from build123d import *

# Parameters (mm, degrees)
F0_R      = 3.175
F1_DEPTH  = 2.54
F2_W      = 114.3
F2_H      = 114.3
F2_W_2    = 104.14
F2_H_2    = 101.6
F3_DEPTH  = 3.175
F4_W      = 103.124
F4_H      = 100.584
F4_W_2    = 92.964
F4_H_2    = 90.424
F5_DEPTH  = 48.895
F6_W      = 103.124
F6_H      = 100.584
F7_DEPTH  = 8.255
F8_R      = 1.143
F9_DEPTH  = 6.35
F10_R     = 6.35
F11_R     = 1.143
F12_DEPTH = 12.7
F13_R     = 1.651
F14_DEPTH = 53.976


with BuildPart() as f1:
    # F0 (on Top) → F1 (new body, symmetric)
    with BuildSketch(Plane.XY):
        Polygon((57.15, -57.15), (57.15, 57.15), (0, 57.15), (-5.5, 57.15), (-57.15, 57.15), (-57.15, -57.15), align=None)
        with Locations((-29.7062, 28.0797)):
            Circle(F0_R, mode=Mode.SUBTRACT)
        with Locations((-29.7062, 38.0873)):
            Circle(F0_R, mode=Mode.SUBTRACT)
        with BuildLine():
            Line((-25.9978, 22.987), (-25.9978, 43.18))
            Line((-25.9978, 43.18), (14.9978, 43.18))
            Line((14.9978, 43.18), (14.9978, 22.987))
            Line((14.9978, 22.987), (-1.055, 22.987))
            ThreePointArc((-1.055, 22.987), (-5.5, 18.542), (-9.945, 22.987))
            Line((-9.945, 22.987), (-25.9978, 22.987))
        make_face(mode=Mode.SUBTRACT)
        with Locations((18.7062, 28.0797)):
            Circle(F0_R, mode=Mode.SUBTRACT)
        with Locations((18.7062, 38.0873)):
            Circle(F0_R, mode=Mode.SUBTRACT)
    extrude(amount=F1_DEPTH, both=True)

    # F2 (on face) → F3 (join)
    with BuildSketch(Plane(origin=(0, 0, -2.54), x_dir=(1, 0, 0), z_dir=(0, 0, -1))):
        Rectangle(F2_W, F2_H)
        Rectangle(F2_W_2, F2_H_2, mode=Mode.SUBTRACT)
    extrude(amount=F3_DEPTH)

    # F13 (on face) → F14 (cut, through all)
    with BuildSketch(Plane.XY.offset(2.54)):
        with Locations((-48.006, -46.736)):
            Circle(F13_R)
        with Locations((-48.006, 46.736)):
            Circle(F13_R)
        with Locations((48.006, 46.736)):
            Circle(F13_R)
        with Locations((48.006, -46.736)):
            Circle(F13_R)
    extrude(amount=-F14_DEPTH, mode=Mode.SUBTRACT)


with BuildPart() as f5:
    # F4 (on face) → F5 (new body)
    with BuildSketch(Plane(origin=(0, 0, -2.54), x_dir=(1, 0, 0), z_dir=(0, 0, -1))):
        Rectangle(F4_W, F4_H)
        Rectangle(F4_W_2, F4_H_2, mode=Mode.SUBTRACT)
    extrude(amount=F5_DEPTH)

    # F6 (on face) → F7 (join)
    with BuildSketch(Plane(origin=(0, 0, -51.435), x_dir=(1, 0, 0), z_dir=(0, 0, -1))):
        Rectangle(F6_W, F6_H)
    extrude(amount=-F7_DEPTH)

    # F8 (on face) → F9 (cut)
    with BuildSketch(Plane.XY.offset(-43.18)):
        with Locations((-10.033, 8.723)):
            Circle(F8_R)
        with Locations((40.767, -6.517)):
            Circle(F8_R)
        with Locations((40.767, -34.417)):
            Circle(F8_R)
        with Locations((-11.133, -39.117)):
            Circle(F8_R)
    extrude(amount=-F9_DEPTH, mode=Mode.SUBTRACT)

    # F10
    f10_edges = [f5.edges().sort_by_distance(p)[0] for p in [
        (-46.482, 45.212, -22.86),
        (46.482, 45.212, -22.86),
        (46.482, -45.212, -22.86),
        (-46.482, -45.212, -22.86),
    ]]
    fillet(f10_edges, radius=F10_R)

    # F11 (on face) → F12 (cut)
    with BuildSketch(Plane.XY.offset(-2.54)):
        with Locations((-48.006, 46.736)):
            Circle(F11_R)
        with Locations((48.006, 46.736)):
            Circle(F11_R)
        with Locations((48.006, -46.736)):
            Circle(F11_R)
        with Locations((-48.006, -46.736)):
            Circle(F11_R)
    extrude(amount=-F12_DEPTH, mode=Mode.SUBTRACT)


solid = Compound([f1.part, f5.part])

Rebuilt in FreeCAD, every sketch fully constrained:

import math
import FreeCAD as App
import Part
import Sketcher
from FreeCAD import Vector
Q = App.Units.Quantity


def edges_at(feature, points):
    """Names of the edges that pass closest to the given points."""
    edges = feature.Shape.Edges
    near = lambda p: min(range(len(edges)), key=lambda i: edges[i].distToShape(Part.Vertex(*p))[0])
    return sorted({f"Edge{near(p) + 1}" for p in points})

doc = App.newDocument("Part")
body = doc.addObject("PartDesign::Body", "Body")

# Sketch on XY plane
sketch1 = body.newObject("Sketcher::SketchObject", "Sketch")
sketch1.AttachmentSupport = (doc.getObject("XY_Plane"), [""])
sketch1.MapMode = "FlatFace"
sketch1.addGeometry([
    Part.LineSegment(Vector(57.1, -57.1, 0), Vector(57.1, 57.1, 0)),  # 0
    Part.LineSegment(Vector(57.1, 57.1, 0), Vector(-57.1, 57.1, 0)),  # 1
    Part.LineSegment(Vector(-57.1, 57.1, 0), Vector(-57.1, -57.1, 0)),  # 2
    Part.LineSegment(Vector(-57.1, -57.1, 0), Vector(57.1, -57.1, 0)),  # 3
    Part.Circle(Vector(-29.7, 28.1, 0), Vector(0, 0, 1), 3.2),  # 4
    Part.LineSegment(Vector(-9.9, 23, 0), Vector(-26, 23, 0)),  # 5
    Part.LineSegment(Vector(-26, 23, 0), Vector(-26, 43.2, 0)),  # 6
    Part.LineSegment(Vector(-26, 43.2, 0), Vector(15, 43.2, 0)),  # 7
    Part.LineSegment(Vector(15, 43.2, 0), Vector(15, 23, 0)),  # 8
    Part.LineSegment(Vector(15, 23, 0), Vector(-1.1, 23, 0)),  # 9
    Part.ArcOfCircle(Part.Circle(Vector(-5.5, 23, 0), Vector(0, 0, 1), 4.4), math.radians(180), math.radians(360)),  # 10
    Part.Circle(Vector(18.7, 28.1, 0), Vector(0, 0, 1), 3.2),  # 11
    Part.Circle(Vector(-29.7, 38.1, 0), Vector(0, 0, 1), 3.2),  # 12
    Part.Circle(Vector(18.7, 38.1, 0), Vector(0, 0, 1), 3.2),  # 13
], False)
sketch1.addConstraint([
    Sketcher.Constraint("Coincident", 0, 2, 1, 1),
    Sketcher.Constraint("Coincident", 1, 2, 2, 1),
    Sketcher.Constraint("Coincident", 2, 2, 3, 1),
    Sketcher.Constraint("Coincident", 3, 2, 0, 1),
    Sketcher.Constraint("Coincident", 5, 2, 6, 1),
    Sketcher.Constraint("Coincident", 6, 2, 7, 1),
    Sketcher.Constraint("Coincident", 7, 2, 8, 1),
    Sketcher.Constraint("Coincident", 8, 2, 9, 1),
    Sketcher.Constraint("Coincident", 9, 2, 10, 2),
    Sketcher.Constraint("Coincident", 10, 1, 5, 1),
    Sketcher.Constraint("Vertical", 0),
    Sketcher.Constraint("Horizontal", 1),
    Sketcher.Constraint("Vertical", 2),
    Sketcher.Constraint("Horizontal", 3),
    Sketcher.Constraint("Horizontal", 5),
    Sketcher.Constraint("Vertical", 6),
    Sketcher.Constraint("Horizontal", 7),
    Sketcher.Constraint("Vertical", 8),
    Sketcher.Constraint("Horizontal", 9),
    Sketcher.Constraint("Equal", 4, 11),
    Sketcher.Constraint("Equal", 11, 12),
    Sketcher.Constraint("Equal", 12, 13),
    Sketcher.Constraint("Symmetric", 0, 2, 2, 2, -1, 1),
    Sketcher.Constraint("Horizontal", 4, 3, 11, 3),
    Sketcher.Constraint("Horizontal", 12, 3, 13, 3),
    Sketcher.Constraint("Horizontal", 10, 3, 5, 2),
    Sketcher.Constraint("Horizontal", 5, 2, 8, 2),
    Sketcher.Constraint("Vertical", 4, 3, 12, 3),
    Sketcher.Constraint("Vertical", 11, 3, 13, 3),
    Sketcher.Constraint("Equal", 5, 9),
    Sketcher.Constraint("Equal", 3, 0),
    Sketcher.Constraint("Diameter", 4, Q("0.25 in")),
    Sketcher.Constraint("DistanceX", 1, 2, 1, 1, Q("4.5 in")),
    Sketcher.Constraint("Radius", 10, Q("0.175 in")),
    Sketcher.Constraint("DistanceY", -1, 1, 6, 2, Q("1.7 in")),
    Sketcher.Constraint("DistanceX", 5, 2, 5, 1, Q("0.632 in")),
    Sketcher.Constraint("DistanceY", 6, 1, 6, 2, Q("0.795 in")),
    Sketcher.Constraint("DistanceX", 5, 2, 11, 3, Q("1.76 in")),
    Sketcher.Constraint("DistanceX", 4, 3, 10, 3, Q("0.953 in")),
    Sketcher.Constraint("DistanceY", 4, 3, 12, 3, Q("0.394 in")),
    Sketcher.Constraint("DistanceY", -1, 1, 4, 3, Q("1.1055 in")),
    Sketcher.Constraint("DistanceX", 4, 3, -1, 1, 29.7062),
])
pad1 = body.newObject("PartDesign::Pad", "Pad")
pad1.Profile = sketch1
pad1.Length = Q("0.2 in")
pad1.Midplane = True

# Sketch on XY plane
sketch2 = body.newObject("Sketcher::SketchObject", "Sketch001")
sketch2.AttachmentSupport = (doc.getObject("XY_Plane"), [""])
sketch2.MapMode = "FlatFace"
sketch2.AttachmentOffset = App.Placement(Vector(0, 0, -0.1 * 25.4), App.Rotation())
sketch2.addGeometry([
    Part.LineSegment(Vector(-57, -57, 0), Vector(-57, 57, 0)),  # 0
    Part.LineSegment(Vector(-57, 57, 0), Vector(57, 57, 0)),  # 1
    Part.LineSegment(Vector(57, 57, 0), Vector(57, -57, 0)),  # 2
    Part.LineSegment(Vector(57, -57, 0), Vector(-57, -57, 0)),  # 3
    Part.LineSegment(Vector(52, 51, 0), Vector(-52, 51, 0)),  # 4
    Part.LineSegment(Vector(-52, 51, 0), Vector(-52, -51, 0)),  # 5
    Part.LineSegment(Vector(-52, -51, 0), Vector(52, -51, 0)),  # 6
    Part.LineSegment(Vector(52, -51, 0), Vector(52, 51, 0)),  # 7
], False)
sketch2.addConstraint([
    Sketcher.Constraint("Coincident", 0, 2, 1, 1),
    Sketcher.Constraint("Coincident", 1, 2, 2, 1),
    Sketcher.Constraint("Coincident", 2, 2, 3, 1),
    Sketcher.Constraint("Coincident", 3, 2, 0, 1),
    Sketcher.Constraint("Coincident", 4, 2, 5, 1),
    Sketcher.Constraint("Coincident", 5, 2, 6, 1),
    Sketcher.Constraint("Coincident", 6, 2, 7, 1),
    Sketcher.Constraint("Coincident", 7, 2, 4, 1),
    Sketcher.Constraint("Vertical", 0),
    Sketcher.Constraint("Horizontal", 1),
    Sketcher.Constraint("Vertical", 2),
    Sketcher.Constraint("Horizontal", 3),
    Sketcher.Constraint("Horizontal", 4),
    Sketcher.Constraint("Vertical", 5),
    Sketcher.Constraint("Horizontal", 6),
    Sketcher.Constraint("Vertical", 7),
    Sketcher.Constraint("Symmetric", 0, 2, 2, 2, -1, 1),
    Sketcher.Constraint("Symmetric", 4, 2, 6, 2, -1, 1),
    Sketcher.Constraint("Equal", 3, 0),
    Sketcher.Constraint("DistanceY", 5, 2, 5, 1, Q("4 in")),
    Sketcher.Constraint("DistanceX", 1, 1, 1, 2, Q("4.5 in")),
    Sketcher.Constraint("DistanceX", 4, 2, 4, 1, Q("4.1 in")),
])
pad2 = body.newObject("PartDesign::Pad", "Pad001")
pad2.Profile = sketch2
pad2.Length = Q("0.125 in")
pad2.Reversed = True

# Sketch on XY plane
sketch3 = body.newObject("Sketcher::SketchObject", "Sketch002")
sketch3.AttachmentSupport = (doc.getObject("XY_Plane"), [""])
sketch3.MapMode = "FlatFace"
sketch3.AttachmentOffset = App.Placement(Vector(0, 0, 0.1 * 25.4), App.Rotation())
sketch3.addGeometry([
    Part.Circle(Vector(-48, -46.7, 0), Vector(0, 0, 1), 1.7),
    Part.Circle(Vector(-48, 46.7, 0), Vector(0, 0, 1), 1.7),
    Part.Circle(Vector(48, 46.7, 0), Vector(0, 0, 1), 1.7),
    Part.Circle(Vector(48, -46.7, 0), Vector(0, 0, 1), 1.7),
], False)
sketch3.addConstraint([
    Sketcher.Constraint("Equal", 0, 1),
    Sketcher.Constraint("Equal", 1, 2),
    Sketcher.Constraint("Equal", 2, 3),
    Sketcher.Constraint("Symmetric", 0, 3, 2, 3, -1, 1),
    Sketcher.Constraint("Symmetric", 1, 3, 3, 3, -1, 1),
    Sketcher.Constraint("Symmetric", 1, 3, 2, 3, -2),
    Sketcher.Constraint("Diameter", 0, Q("0.13 in")),
    Sketcher.Constraint("DistanceX", 0, 3, -1, 1, Q("1.89 in")),
    Sketcher.Constraint("DistanceY", 0, 3, -1, 1, Q("1.84 in")),
])
pocket1 = body.newObject("PartDesign::Pocket", "Pocket")
pocket1.Profile = sketch3
pocket1.Type = "ThroughAll"
body2 = doc.addObject("PartDesign::Body", "Body001")

# Sketch on XY plane
sketch4 = body2.newObject("Sketcher::SketchObject", "Sketch003")
sketch4.AttachmentSupport = (doc.getObject("XY_Plane001"), [""])
sketch4.MapMode = "FlatFace"
sketch4.AttachmentOffset = App.Placement(Vector(0, 0, -0.1 * 25.4), App.Rotation())
sketch4.addGeometry([
    Part.LineSegment(Vector(-52, -50, 0), Vector(-52, 50, 0)),  # 0
    Part.LineSegment(Vector(-52, 50, 0), Vector(52, 50, 0)),  # 1
    Part.LineSegment(Vector(52, 50, 0), Vector(52, -50, 0)),  # 2
    Part.LineSegment(Vector(52, -50, 0), Vector(-52, -50, 0)),  # 3
    Part.LineSegment(Vector(46, 45, 0), Vector(-46, 45, 0)),  # 4
    Part.LineSegment(Vector(-46, 45, 0), Vector(-46, -45, 0)),  # 5
    Part.LineSegment(Vector(-46, -45, 0), Vector(46, -45, 0)),  # 6
    Part.LineSegment(Vector(46, -45, 0), Vector(46, 45, 0)),  # 7
], False)
sketch4.addConstraint([
    Sketcher.Constraint("Coincident", 0, 2, 1, 1),
    Sketcher.Constraint("Coincident", 1, 2, 2, 1),
    Sketcher.Constraint("Coincident", 2, 2, 3, 1),
    Sketcher.Constraint("Coincident", 3, 2, 0, 1),
    Sketcher.Constraint("Coincident", 4, 2, 5, 1),
    Sketcher.Constraint("Coincident", 5, 2, 6, 1),
    Sketcher.Constraint("Coincident", 6, 2, 7, 1),
    Sketcher.Constraint("Coincident", 7, 2, 4, 1),
    Sketcher.Constraint("Vertical", 0),
    Sketcher.Constraint("Horizontal", 1),
    Sketcher.Constraint("Vertical", 2),
    Sketcher.Constraint("Horizontal", 3),
    Sketcher.Constraint("Horizontal", 4),
    Sketcher.Constraint("Vertical", 5),
    Sketcher.Constraint("Horizontal", 6),
    Sketcher.Constraint("Vertical", 7),
    Sketcher.Constraint("Symmetric", 0, 2, 2, 2, -1, 1),
    Sketcher.Constraint("Symmetric", 4, 2, 6, 2, -1, 1),
    Sketcher.Constraint("DistanceX", 1, 1, 1, 2, Q("4.06 in")),
    Sketcher.Constraint("DistanceX", 4, 2, 4, 1, Q("3.66 in")),
    Sketcher.Constraint("DistanceY", 0, 1, 0, 2, Q("3.96 in")),
    Sketcher.Constraint("DistanceY", 5, 2, 5, 1, Q("3.56 in")),
])
pad3 = body2.newObject("PartDesign::Pad", "Pad002")
pad3.Profile = sketch4
pad3.Length = Q("1.925 in")
pad3.Reversed = True

# Sketch on XY plane
sketch5 = body2.newObject("Sketcher::SketchObject", "Sketch004")
sketch5.AttachmentSupport = (doc.getObject("XY_Plane001"), [""])
sketch5.MapMode = "FlatFace"
sketch5.AttachmentOffset = App.Placement(Vector(0, 0, -2.025 * 25.4), App.Rotation())
sketch5.addGeometry([
    Part.LineSegment(Vector(-52, -50, 0), Vector(-52, 50, 0)),
    Part.LineSegment(Vector(-52, 50, 0), Vector(52, 50, 0)),
    Part.LineSegment(Vector(52, 50, 0), Vector(52, -50, 0)),
    Part.LineSegment(Vector(52, -50, 0), Vector(-52, -50, 0)),
], False)
sketch5.addConstraint([
    Sketcher.Constraint("Coincident", 0, 2, 1, 1),
    Sketcher.Constraint("Coincident", 1, 2, 2, 1),
    Sketcher.Constraint("Coincident", 2, 2, 3, 1),
    Sketcher.Constraint("Coincident", 3, 2, 0, 1),
    Sketcher.Constraint("Vertical", 0),
    Sketcher.Constraint("Horizontal", 1),
    Sketcher.Constraint("Vertical", 2),
    Sketcher.Constraint("Horizontal", 3),
    Sketcher.Constraint("Symmetric", 0, 2, 2, 2, -1, 1),
    Sketcher.Constraint("DistanceX", 1, 1, 1, 2, Q("4.06 in")),
    Sketcher.Constraint("DistanceY", 0, 1, 0, 2, Q("3.96 in")),
])
pad4 = body2.newObject("PartDesign::Pad", "Pad003")
pad4.Profile = sketch5
pad4.Length = Q("0.325 in")

# Sketch on XY plane
sketch6 = body2.newObject("Sketcher::SketchObject", "Sketch005")
sketch6.AttachmentSupport = (doc.getObject("XY_Plane001"), [""])
sketch6.MapMode = "FlatFace"
sketch6.AttachmentOffset = App.Placement(Vector(0, 0, -1.7 * 25.4), App.Rotation())
sketch6.addGeometry([
    Part.Circle(Vector(-10, 8.7, 0), Vector(0, 0, 1), 1.1),
    Part.Circle(Vector(40.8, -6.5, 0), Vector(0, 0, 1), 1.1),
    Part.Circle(Vector(40.8, -34.4, 0), Vector(0, 0, 1), 1.1),
    Part.Circle(Vector(-11.1, -39.1, 0), Vector(0, 0, 1), 1.1),
], False)
sketch6.addConstraint([
    Sketcher.Constraint("Equal", 0, 1),
    Sketcher.Constraint("Equal", 1, 2),
    Sketcher.Constraint("Equal", 2, 3),
    Sketcher.Constraint("Vertical", 1, 3, 2, 3),
    Sketcher.Constraint("Diameter", 0, Q("0.09 in")),
    Sketcher.Constraint("DistanceX", 0, 3, 1, 3, Q("2 in")),
    Sketcher.Constraint("DistanceY", 1, 3, 0, 3, Q("0.6 in")),
    Sketcher.Constraint("DistanceX", 0, 3, -1, 1, Q("0.395 in")),
    Sketcher.Constraint("DistanceY", 2, 3, -1, 1, Q("1.355 in")),
    Sketcher.Constraint("DistanceY", -1, 1, 0, 3, 8.723),
    Sketcher.Constraint("DistanceX", 3, 3, -1, 1, 11.133),
    Sketcher.Constraint("DistanceY", 3, 3, -1, 1, 39.117),
])
pocket2 = body2.newObject("PartDesign::Pocket", "Pocket001")
pocket2.Profile = sketch6
pocket2.Length = Q("0.25 in")
doc.recompute()

fillet = body2.newObject("PartDesign::Fillet", "Fillet")
fillet.Base = (pocket2, edges_at(pocket2, [
    (-46.482, 45.212, -22.86),
    (46.482, 45.212, -22.86),
    (46.482, -45.212, -22.86),
    (-46.482, -45.212, -22.86),
]))
fillet.Radius = Q("0.25 in")

# Sketch on XY plane
sketch7 = body2.newObject("Sketcher::SketchObject", "Sketch006")
sketch7.AttachmentSupport = (doc.getObject("XY_Plane001"), [""])
sketch7.MapMode = "FlatFace"
sketch7.AttachmentOffset = App.Placement(Vector(0, 0, -0.1 * 25.4), App.Rotation())
sketch7.addGeometry([
    Part.Circle(Vector(-48, 46.7, 0), Vector(0, 0, 1), 1.1),
    Part.Circle(Vector(48, 46.7, 0), Vector(0, 0, 1), 1.1),
    Part.Circle(Vector(48, -46.7, 0), Vector(0, 0, 1), 1.1),
    Part.Circle(Vector(-48, -46.7, 0), Vector(0, 0, 1), 1.1),
], False)
sketch7.addConstraint([
    Sketcher.Constraint("Equal", 0, 1),
    Sketcher.Constraint("Equal", 1, 2),
    Sketcher.Constraint("Equal", 2, 3),
    Sketcher.Constraint("Symmetric", 0, 3, 2, 3, -1, 1),
    Sketcher.Constraint("Symmetric", 1, 3, 3, 3, -1, 1),
    Sketcher.Constraint("Symmetric", 0, 3, 1, 3, -2),
    Sketcher.Constraint("Diameter", 0, Q("0.09 in")),
    Sketcher.Constraint("DistanceX", 0, 3, -1, 1, Q("1.89 in")),
    Sketcher.Constraint("DistanceY", -1, 1, 0, 3, Q("1.84 in")),
])
pocket3 = body2.newObject("PartDesign::Pocket", "Pocket002")
pocket3.Profile = sketch7
pocket3.Length = Q("0.5 in")

doc.recompute()
